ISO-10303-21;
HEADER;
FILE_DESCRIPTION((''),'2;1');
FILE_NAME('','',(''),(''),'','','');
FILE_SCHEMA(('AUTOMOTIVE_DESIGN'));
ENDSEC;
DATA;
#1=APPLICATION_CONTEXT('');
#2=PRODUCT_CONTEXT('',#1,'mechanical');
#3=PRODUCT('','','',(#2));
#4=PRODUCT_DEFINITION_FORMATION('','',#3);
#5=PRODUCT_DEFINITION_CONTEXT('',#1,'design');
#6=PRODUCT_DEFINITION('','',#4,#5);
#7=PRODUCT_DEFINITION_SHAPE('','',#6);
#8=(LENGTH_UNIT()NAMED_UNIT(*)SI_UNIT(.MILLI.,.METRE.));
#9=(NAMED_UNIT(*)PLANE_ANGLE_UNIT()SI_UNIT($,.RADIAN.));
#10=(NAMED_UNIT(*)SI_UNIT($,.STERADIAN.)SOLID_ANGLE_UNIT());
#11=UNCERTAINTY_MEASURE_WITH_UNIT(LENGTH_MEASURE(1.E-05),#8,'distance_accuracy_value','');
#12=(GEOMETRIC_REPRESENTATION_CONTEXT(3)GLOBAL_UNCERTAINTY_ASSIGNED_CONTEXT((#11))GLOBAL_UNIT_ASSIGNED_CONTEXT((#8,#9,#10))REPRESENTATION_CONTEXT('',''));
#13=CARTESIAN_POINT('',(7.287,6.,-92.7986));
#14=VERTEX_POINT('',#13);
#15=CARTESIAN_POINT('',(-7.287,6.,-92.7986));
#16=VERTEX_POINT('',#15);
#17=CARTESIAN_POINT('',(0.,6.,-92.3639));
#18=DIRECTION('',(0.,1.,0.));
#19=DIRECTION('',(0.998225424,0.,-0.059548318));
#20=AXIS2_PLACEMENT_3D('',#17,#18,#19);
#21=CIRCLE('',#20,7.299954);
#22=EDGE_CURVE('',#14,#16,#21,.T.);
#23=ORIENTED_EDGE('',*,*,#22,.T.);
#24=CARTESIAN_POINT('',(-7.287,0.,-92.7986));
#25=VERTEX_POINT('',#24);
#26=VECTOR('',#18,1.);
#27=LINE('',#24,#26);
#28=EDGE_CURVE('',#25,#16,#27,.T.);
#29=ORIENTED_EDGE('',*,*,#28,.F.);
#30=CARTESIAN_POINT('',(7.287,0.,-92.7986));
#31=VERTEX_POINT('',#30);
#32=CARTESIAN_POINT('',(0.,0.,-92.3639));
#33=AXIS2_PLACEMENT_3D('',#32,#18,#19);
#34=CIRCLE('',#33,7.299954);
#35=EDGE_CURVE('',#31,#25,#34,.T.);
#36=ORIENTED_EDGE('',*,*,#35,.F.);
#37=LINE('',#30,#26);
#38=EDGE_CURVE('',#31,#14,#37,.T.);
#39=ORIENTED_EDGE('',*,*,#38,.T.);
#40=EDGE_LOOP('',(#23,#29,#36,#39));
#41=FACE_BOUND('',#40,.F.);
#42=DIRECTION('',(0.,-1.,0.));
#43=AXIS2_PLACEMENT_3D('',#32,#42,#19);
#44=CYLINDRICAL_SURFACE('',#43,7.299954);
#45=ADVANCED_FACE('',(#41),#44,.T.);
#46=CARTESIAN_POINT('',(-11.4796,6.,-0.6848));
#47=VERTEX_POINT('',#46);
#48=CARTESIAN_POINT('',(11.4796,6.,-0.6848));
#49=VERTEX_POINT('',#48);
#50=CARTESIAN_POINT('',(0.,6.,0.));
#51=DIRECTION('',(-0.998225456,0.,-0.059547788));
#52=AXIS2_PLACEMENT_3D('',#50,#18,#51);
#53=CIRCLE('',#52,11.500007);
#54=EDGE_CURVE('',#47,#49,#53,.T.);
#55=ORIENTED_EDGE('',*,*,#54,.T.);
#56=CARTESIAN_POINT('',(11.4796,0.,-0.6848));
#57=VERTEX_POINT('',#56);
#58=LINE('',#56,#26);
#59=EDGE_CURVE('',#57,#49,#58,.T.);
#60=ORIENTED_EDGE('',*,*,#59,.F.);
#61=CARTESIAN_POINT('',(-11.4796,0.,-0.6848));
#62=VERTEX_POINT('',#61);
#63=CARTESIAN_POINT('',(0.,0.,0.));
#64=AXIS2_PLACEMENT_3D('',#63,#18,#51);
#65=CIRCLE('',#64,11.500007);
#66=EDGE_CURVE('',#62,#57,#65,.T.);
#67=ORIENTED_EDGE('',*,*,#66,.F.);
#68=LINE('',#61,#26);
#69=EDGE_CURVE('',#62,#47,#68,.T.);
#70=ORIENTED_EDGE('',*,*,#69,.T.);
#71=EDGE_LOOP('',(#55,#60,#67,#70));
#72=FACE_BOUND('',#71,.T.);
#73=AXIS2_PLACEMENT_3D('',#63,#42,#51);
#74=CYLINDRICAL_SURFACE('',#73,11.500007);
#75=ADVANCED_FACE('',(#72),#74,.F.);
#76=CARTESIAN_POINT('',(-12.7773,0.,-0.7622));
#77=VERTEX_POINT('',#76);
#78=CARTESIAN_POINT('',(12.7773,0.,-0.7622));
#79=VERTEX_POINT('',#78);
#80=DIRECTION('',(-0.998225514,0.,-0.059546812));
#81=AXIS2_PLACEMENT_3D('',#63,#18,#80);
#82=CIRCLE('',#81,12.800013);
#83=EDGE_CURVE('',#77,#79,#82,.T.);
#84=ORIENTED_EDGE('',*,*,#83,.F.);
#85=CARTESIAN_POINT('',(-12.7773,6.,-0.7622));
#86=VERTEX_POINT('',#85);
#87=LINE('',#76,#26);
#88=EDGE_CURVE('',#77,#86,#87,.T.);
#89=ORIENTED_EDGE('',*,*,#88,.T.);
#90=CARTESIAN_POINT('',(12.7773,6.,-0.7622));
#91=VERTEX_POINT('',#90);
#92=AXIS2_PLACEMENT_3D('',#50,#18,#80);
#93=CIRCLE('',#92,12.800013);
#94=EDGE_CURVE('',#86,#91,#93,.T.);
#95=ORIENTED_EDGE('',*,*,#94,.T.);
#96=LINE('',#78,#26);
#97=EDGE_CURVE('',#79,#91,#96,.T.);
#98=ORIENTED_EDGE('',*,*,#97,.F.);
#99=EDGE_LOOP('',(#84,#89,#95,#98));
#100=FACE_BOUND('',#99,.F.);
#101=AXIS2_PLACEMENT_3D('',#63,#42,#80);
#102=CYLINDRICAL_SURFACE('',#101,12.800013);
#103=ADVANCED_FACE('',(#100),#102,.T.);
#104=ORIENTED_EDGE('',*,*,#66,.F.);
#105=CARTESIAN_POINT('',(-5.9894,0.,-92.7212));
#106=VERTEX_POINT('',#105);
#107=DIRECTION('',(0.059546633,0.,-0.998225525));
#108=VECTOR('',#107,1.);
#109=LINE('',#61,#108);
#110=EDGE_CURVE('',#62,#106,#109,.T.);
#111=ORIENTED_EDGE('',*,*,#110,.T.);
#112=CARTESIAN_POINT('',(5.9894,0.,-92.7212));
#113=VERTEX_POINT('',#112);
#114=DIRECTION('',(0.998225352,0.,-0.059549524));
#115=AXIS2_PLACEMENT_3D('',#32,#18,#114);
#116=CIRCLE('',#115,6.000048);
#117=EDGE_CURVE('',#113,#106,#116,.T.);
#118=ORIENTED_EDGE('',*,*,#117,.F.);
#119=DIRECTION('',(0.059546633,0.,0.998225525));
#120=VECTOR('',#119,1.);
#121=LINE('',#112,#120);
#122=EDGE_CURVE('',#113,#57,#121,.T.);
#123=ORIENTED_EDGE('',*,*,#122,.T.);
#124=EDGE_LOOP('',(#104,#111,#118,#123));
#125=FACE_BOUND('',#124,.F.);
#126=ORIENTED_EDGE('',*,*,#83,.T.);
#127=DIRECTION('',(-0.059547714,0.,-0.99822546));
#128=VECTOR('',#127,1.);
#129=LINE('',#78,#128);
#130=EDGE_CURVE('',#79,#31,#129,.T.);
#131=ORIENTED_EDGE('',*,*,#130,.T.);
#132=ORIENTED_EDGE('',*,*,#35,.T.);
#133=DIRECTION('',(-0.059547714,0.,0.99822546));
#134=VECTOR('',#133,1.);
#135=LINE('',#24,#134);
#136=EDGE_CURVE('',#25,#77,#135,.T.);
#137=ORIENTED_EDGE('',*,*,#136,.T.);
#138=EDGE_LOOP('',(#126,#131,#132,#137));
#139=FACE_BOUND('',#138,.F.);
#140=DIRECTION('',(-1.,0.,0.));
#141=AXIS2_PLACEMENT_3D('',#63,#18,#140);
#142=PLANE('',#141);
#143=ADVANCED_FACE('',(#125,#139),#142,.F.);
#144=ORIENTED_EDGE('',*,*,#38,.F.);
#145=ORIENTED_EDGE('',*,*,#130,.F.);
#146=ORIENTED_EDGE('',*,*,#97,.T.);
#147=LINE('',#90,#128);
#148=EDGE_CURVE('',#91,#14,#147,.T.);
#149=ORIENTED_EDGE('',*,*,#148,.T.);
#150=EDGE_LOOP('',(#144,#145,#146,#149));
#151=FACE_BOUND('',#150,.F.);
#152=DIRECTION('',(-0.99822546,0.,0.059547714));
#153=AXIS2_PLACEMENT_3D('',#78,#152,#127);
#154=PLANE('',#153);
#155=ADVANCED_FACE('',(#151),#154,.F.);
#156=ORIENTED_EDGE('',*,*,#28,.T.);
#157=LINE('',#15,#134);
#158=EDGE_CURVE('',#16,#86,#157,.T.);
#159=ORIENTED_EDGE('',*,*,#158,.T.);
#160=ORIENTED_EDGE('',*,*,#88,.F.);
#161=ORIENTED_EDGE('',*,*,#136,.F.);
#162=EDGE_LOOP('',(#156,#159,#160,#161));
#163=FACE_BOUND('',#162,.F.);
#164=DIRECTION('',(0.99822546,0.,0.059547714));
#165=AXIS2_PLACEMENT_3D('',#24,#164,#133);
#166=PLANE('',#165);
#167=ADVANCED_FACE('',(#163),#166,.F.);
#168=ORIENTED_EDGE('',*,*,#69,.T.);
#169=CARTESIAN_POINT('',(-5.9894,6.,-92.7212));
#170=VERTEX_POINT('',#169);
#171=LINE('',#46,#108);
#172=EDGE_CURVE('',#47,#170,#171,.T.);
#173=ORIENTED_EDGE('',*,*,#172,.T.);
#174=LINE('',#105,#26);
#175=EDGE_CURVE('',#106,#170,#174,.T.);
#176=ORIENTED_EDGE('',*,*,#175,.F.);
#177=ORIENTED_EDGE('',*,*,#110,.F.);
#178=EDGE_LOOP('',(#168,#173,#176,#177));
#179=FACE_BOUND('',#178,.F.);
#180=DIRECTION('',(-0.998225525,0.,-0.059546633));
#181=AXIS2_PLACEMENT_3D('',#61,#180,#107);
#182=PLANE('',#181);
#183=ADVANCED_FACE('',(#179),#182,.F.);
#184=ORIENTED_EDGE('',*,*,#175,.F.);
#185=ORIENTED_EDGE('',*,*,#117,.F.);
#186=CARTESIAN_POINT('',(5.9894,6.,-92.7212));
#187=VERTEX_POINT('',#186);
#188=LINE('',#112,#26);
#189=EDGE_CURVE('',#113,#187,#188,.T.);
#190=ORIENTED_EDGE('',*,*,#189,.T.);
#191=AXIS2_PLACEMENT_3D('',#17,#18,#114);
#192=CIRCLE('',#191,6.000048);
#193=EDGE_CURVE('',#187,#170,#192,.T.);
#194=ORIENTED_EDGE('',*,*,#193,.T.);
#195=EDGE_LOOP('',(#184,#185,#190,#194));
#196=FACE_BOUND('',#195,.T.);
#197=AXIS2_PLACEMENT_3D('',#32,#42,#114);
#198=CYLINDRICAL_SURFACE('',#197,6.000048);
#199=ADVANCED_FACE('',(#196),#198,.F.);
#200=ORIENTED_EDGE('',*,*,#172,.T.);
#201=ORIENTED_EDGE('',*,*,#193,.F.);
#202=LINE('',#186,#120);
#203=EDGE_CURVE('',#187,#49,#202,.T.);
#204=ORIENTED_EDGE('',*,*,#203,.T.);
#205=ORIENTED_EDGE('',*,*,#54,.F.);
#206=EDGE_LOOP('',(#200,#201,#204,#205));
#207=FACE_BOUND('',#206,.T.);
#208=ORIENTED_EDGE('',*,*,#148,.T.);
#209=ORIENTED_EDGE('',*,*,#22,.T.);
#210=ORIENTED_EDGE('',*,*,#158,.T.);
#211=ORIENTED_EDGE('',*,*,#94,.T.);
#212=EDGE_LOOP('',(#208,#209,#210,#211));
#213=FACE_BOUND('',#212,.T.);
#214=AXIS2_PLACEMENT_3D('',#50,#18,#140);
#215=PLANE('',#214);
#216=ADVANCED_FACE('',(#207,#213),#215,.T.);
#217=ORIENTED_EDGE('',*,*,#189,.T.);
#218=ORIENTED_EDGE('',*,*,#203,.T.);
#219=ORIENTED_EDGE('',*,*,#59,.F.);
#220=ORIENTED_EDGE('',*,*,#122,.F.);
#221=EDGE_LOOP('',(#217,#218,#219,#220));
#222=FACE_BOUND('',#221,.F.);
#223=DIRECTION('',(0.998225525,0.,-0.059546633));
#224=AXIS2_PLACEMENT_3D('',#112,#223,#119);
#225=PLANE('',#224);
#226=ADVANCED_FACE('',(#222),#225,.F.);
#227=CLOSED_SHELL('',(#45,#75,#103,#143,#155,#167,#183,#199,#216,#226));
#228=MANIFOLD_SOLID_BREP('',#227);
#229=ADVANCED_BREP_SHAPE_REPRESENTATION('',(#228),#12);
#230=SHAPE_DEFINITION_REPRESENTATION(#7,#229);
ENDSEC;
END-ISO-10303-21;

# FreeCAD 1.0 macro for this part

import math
import FreeCAD as App
import Part
import Sketcher
Q = App.Units.Quantity

doc = App.newDocument("Part")
body = doc.addObject("PartDesign::Body", "Body")

# Sketch on XZ plane
sketch1 = body.newObject("Sketcher::SketchObject", "Sketch")
sketch1.AttachmentSupport = (doc.getObject("XZ_Plane"), [""])
sketch1.MapMode = "FlatFace"
sketch1.addGeometry([
    Part.ArcOfCircle(Part.Circle(App.Vector(0, -92, 0), App.Vector(0, 0, 1), 7), math.radians(-177), math.radians(-3)),  # 0
    Part.LineSegment(App.Vector(-7, -93, 0), App.Vector(-13, -1, 0)),  # 1
    Part.ArcOfCircle(Part.Circle(App.Vector(0, 0, 0), App.Vector(0, 0, 1), 13), math.radians(-3), math.radians(183)),  # 2
    Part.LineSegment(App.Vector(13, -1, 0), App.Vector(7, -93, 0)),  # 3
    Part.ArcOfCircle(Part.Circle(App.Vector(0, 0, 0), App.Vector(0, 0, 1), 12), math.radians(-3), math.radians(183)),  # 4
    Part.LineSegment(App.Vector(-11, -1, 0), App.Vector(-6, -93, 0)),  # 5
    Part.ArcOfCircle(Part.Circle(App.Vector(0, -92, 0), App.Vector(0, 0, 1), 6), math.radians(-177), math.radians(-3)),  # 6
    Part.LineSegment(App.Vector(6, -93, 0), App.Vector(11, -1, 0)),  # 7
], False)
sketch1.addConstraint([
    Sketcher.Constraint("Tangent", 0, 1, 1, 1),
    Sketcher.Constraint("Tangent", 1, 2, 2, 2),
    Sketcher.Constraint("Tangent", 2, 1, 3, 1),
    Sketcher.Constraint("Tangent", 3, 2, 0, 2),
    Sketcher.Constraint("Tangent", 4, 2, 5, 1),
    Sketcher.Constraint("Tangent", 5, 2, 6, 1),
    Sketcher.Constraint("Tangent", 6, 2, 7, 1),
    Sketcher.Constraint("Tangent", 7, 2, 4, 1),
    Sketcher.Constraint("Coincident", 2, 3, -1, 1),
    Sketcher.Constraint("Coincident", 4, 3, -1, 1),
    Sketcher.Constraint("Coincident", 6, 3, 0, 3),
    Sketcher.Constraint("PointOnObject", 0, 3, -2),
    Sketcher.Constraint("Parallel", 1, 5),
    Sketcher.Constraint("Radius", 6, Q("6 mm")),
    Sketcher.Constraint("Radius", 4, Q("11.5 mm")),
    Sketcher.Constraint("Distance", 1, Q("92.2 mm")),
    Sketcher.Constraint("Radius", 0, Q("7.3 mm")),
])
pad1 = body.newObject("PartDesign::Pad", "Pad")
pad1.Profile = sketch1
pad1.Length = 6
pad1.Reversed = True

doc.recompute()
